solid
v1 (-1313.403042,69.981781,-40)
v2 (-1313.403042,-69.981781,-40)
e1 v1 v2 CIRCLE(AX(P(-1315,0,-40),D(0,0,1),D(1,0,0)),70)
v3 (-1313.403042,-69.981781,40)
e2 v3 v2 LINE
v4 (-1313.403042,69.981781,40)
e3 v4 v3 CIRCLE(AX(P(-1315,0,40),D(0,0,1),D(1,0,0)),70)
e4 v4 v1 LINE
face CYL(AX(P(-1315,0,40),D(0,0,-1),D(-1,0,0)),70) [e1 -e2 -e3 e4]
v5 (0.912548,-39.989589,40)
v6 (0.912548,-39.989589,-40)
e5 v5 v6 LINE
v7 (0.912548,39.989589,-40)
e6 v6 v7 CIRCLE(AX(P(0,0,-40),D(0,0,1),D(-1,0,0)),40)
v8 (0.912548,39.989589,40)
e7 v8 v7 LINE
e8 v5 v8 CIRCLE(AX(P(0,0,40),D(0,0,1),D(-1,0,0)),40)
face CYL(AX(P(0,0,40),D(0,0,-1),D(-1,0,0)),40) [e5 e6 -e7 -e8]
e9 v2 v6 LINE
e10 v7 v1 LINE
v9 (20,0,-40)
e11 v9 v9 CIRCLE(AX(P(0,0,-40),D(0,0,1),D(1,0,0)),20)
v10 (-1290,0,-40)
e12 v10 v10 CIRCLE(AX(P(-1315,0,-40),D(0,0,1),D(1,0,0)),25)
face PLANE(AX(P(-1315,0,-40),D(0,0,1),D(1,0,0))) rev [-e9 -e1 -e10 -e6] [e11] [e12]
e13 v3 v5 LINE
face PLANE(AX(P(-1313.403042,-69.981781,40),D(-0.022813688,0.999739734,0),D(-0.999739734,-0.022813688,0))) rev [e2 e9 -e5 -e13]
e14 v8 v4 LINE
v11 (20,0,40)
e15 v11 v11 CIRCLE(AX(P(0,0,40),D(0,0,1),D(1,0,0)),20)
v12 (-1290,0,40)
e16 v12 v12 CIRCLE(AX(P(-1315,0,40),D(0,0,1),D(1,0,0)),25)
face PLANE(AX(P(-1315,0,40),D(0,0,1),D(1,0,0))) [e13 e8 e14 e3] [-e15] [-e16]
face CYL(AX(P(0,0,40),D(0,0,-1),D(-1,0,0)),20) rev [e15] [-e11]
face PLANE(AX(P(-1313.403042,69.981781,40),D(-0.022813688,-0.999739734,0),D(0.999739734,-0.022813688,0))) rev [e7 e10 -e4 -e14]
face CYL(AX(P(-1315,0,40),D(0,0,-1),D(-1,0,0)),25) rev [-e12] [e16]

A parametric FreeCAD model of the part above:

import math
import FreeCAD as App
import Part
import Sketcher

V = App.Vector

doc = App.newDocument("Part")
body = doc.addObject("PartDesign::Body", "Body")

sketch1 = body.newObject("Sketcher::SketchObject", "Sketch")
sketch1.AttachmentSupport = (doc.getObject("XY_Plane"), [""])
sketch1.MapMode = "FlatFace"
sketch1.addGeometry([
    Part.LineSegment(V(1, 40, 0), V(-1313, 70, 0)),
    Part.ArcOfCircle(Part.Circle(V(-1315, 0, 0), V(0, 0, 1), 70), math.radians(89), math.radians(271)),
    Part.LineSegment(V(-1313, -70, 0), V(1, -40, 0)),
    Part.ArcOfCircle(Part.Circle(V(0, 0, 0), V(0, 0, 1), 40), math.radians(-89), math.radians(89)),
    Part.Circle(V(0, 0, 0), V(0, 0, 1), 20),
    Part.Circle(V(-1315, 0, 0), V(0, 0, 1), 25),
], False)
sketch1.addConstraint([
    Sketcher.Constraint("Tangent", 0, 2, 1, 1),
    Sketcher.Constraint("Tangent", 1, 2, 2, 1),
    Sketcher.Constraint("Tangent", 2, 2, 3, 1),
    Sketcher.Constraint("Tangent", 3, 2, 0, 1),
    Sketcher.Constraint("Coincident", 3, 3, -1, 1),
    Sketcher.Constraint("Coincident", 4, 3, -1, 1),
    Sketcher.Constraint("Coincident", 5, 3, 1, 3),
    Sketcher.Constraint("PointOnObject", 1, 3, -1),
    Sketcher.Constraint("Diameter", 4, 40.0),
    Sketcher.Constraint("Diameter", 5, 50.0),
    Sketcher.Constraint("Radius", 1, 70.0),
    Sketcher.Constraint("Radius", 3, 40.0),
    Sketcher.Constraint("DistanceX", 1, 3, -1, 1, 1315.0),
])
pad1 = body.newObject("PartDesign::Pad", "Pad")
pad1.Profile = sketch1
pad1.Length = 80
pad1.Midplane = True

doc.recompute()
